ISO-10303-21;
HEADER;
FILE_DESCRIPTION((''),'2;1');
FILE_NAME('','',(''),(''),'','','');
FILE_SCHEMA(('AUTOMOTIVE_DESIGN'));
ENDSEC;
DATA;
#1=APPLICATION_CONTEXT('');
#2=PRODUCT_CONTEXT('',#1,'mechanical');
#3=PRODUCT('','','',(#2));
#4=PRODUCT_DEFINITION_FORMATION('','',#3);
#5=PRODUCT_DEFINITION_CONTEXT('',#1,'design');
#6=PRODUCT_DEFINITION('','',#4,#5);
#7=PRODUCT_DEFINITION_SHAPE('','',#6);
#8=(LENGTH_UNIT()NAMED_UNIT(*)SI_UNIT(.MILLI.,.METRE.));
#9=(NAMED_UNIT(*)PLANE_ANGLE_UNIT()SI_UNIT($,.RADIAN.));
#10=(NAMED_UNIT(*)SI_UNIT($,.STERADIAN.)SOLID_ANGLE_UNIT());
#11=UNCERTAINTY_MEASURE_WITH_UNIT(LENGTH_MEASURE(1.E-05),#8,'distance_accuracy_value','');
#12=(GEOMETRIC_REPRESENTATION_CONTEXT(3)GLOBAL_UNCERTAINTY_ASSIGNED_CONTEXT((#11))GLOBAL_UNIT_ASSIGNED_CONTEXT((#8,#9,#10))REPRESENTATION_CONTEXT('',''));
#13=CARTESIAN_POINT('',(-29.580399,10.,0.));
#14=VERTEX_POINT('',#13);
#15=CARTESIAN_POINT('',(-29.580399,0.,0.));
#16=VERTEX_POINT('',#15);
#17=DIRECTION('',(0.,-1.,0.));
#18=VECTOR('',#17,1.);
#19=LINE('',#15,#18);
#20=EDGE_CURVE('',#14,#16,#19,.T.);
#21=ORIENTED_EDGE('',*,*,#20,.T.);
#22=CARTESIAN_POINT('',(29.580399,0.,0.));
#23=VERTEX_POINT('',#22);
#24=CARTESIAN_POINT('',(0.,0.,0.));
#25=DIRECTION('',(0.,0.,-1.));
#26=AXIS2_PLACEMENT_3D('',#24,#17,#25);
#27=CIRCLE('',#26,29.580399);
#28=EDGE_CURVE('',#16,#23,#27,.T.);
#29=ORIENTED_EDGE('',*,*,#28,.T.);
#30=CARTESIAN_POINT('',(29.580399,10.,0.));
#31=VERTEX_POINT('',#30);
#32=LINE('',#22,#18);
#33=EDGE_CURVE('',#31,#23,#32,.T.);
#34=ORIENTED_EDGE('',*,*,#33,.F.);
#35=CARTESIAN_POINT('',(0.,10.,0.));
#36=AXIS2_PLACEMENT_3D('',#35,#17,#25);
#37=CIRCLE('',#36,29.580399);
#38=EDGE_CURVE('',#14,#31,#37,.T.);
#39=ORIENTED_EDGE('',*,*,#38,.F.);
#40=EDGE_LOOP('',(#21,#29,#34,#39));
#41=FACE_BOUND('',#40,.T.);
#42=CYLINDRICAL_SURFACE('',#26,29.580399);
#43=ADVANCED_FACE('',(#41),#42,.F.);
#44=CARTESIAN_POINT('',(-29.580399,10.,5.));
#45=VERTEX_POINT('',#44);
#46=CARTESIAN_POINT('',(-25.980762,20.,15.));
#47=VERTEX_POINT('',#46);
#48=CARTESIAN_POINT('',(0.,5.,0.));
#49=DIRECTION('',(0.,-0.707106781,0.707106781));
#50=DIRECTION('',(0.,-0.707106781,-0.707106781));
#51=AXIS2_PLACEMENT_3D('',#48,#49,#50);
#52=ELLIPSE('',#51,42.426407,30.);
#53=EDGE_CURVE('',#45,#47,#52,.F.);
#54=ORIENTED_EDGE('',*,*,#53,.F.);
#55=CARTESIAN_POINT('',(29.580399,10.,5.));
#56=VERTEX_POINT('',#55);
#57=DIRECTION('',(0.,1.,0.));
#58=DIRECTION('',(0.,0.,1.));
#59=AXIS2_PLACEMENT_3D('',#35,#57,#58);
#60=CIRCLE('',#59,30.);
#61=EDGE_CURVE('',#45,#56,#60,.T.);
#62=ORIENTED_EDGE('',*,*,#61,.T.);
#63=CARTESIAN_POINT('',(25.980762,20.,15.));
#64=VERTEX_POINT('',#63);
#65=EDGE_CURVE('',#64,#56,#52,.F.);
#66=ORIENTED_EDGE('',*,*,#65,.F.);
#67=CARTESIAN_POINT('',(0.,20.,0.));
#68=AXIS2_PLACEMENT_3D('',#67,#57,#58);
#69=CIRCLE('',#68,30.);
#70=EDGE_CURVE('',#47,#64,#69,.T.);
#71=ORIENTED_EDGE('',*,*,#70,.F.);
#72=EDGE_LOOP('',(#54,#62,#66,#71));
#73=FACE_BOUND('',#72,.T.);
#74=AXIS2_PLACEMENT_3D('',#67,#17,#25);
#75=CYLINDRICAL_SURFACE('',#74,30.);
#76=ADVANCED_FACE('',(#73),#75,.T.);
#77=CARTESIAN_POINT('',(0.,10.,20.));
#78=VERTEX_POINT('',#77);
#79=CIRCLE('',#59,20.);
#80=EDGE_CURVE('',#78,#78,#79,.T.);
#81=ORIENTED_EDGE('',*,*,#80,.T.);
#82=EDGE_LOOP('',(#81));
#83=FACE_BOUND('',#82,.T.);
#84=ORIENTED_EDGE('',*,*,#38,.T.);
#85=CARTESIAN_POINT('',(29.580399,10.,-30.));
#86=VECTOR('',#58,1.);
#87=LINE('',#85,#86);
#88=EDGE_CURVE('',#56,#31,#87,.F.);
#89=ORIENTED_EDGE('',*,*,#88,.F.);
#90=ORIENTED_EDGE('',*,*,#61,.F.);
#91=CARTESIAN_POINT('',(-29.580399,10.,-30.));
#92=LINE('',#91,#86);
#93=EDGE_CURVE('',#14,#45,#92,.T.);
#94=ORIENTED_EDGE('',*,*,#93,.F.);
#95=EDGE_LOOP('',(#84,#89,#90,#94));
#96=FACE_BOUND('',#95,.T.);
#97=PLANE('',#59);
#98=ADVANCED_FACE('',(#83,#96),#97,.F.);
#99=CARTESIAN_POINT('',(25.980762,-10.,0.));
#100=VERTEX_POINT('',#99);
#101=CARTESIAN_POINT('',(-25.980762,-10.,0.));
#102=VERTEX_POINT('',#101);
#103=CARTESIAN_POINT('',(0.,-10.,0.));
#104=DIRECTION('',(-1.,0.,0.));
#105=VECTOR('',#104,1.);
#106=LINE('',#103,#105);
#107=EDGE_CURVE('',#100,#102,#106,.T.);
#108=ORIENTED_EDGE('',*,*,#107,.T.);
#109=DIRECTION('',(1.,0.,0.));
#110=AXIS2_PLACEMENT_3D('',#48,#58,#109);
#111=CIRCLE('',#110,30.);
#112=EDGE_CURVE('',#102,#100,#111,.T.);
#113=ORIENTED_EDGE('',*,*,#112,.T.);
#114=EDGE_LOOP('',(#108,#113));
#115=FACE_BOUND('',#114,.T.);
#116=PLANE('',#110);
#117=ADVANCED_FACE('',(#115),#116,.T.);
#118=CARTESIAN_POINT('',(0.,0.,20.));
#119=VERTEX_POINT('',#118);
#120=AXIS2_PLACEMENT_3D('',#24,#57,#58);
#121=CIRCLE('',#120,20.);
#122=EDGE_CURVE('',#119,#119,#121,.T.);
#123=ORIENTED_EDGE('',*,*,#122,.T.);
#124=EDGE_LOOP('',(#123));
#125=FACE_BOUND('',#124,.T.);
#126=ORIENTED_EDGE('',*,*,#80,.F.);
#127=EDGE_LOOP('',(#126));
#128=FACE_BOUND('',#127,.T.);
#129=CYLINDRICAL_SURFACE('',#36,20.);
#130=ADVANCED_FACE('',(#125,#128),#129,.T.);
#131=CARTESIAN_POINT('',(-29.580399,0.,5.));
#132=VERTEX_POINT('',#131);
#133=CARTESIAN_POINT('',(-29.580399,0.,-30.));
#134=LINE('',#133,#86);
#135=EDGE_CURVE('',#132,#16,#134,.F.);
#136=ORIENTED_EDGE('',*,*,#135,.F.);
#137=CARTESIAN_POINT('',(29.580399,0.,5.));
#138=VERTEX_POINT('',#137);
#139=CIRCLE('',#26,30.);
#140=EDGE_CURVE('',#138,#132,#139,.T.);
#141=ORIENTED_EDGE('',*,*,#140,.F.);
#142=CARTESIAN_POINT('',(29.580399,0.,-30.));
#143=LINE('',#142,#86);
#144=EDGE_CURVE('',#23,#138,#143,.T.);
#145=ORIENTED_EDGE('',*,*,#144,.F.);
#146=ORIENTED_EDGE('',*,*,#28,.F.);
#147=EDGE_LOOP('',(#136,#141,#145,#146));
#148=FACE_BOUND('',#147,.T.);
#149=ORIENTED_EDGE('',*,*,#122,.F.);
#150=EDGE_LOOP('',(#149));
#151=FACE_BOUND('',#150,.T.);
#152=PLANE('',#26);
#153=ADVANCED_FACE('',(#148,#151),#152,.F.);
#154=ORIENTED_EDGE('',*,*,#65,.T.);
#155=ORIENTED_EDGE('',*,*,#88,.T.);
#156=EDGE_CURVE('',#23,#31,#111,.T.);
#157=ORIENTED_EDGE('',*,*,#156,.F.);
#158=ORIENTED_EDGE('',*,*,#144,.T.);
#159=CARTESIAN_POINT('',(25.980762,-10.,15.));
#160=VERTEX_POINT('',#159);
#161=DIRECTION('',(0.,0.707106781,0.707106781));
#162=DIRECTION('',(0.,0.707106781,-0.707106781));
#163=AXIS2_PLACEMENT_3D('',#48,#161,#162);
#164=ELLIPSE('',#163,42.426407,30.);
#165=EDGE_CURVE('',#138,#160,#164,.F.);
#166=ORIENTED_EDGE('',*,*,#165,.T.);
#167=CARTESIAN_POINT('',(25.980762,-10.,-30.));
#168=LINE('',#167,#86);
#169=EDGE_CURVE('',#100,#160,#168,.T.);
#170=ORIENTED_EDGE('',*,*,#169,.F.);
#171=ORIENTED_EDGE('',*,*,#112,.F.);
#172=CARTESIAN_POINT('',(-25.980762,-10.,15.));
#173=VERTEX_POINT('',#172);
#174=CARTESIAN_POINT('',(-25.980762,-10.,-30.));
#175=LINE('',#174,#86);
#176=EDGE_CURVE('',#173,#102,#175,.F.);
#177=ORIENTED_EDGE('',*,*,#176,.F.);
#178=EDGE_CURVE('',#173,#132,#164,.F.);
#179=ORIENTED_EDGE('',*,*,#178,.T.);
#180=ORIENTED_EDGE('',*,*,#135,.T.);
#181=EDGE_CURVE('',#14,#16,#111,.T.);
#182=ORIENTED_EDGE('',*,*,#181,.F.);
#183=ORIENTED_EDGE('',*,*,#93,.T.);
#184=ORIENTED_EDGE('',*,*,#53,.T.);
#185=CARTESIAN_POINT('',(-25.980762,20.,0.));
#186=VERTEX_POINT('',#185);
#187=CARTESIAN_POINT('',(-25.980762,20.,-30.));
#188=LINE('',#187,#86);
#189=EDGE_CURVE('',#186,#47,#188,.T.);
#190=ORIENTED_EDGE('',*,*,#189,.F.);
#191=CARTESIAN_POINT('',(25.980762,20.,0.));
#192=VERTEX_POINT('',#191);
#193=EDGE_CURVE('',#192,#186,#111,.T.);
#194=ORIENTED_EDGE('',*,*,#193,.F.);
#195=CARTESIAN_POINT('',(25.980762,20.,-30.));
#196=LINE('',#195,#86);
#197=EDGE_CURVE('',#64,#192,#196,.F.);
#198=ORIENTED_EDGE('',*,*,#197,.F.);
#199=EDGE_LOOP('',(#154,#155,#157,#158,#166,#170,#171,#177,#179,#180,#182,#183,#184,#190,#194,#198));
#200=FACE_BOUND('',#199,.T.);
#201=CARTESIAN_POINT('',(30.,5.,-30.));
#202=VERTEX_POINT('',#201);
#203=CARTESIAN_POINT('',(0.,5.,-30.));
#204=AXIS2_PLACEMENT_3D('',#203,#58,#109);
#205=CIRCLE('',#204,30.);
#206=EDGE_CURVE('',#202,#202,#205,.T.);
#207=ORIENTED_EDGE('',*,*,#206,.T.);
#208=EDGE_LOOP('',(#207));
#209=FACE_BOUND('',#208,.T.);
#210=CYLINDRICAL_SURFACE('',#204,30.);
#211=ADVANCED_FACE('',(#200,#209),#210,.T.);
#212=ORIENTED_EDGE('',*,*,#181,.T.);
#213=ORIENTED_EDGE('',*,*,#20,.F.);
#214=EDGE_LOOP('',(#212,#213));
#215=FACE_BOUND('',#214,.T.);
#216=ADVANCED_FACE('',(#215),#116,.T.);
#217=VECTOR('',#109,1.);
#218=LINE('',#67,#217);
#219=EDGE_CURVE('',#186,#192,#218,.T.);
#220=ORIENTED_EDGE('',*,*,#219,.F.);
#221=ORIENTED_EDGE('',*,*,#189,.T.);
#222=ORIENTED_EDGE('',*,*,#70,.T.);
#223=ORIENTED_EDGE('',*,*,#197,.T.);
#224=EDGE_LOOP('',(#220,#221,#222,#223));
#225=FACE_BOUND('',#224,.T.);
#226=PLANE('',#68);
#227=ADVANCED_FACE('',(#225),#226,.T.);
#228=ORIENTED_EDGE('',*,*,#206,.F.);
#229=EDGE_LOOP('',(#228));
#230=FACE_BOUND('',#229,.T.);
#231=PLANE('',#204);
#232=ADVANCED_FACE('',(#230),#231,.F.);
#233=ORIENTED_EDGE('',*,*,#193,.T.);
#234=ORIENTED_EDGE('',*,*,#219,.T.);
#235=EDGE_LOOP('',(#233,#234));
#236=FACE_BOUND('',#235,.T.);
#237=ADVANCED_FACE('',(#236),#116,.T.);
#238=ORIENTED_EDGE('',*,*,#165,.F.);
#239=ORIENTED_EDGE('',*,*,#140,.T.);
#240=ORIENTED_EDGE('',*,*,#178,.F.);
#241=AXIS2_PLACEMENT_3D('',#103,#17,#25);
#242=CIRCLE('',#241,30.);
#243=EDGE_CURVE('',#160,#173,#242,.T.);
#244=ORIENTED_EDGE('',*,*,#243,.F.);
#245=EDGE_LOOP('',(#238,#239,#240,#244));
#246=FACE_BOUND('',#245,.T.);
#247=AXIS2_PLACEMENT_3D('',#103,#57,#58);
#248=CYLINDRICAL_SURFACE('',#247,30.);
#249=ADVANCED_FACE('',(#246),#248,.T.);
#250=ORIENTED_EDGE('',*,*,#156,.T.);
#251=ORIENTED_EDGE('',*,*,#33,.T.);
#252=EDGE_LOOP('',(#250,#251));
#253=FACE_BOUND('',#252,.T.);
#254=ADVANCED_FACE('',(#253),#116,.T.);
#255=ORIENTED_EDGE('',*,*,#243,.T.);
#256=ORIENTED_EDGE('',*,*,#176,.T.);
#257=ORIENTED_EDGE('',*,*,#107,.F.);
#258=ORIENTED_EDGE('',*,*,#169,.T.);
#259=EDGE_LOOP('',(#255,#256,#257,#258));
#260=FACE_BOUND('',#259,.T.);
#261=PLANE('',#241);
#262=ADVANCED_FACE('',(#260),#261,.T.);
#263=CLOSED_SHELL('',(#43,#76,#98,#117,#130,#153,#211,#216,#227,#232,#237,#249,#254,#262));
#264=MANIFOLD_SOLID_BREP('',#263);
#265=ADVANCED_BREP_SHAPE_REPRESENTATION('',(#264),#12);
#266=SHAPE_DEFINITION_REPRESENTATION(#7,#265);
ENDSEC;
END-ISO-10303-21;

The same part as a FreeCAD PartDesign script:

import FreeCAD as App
import Part
import Sketcher
from FreeCAD import Vector

doc = App.newDocument("Part")
body = doc.addObject("PartDesign::Body", "Body")

# Sketch on XZ plane
sketch1 = body.newObject("Sketcher::SketchObject", "Sketch")
sketch1.AttachmentSupport = (doc.getObject("XZ_Plane"), [""])
sketch1.MapMode = "FlatFace"
sketch1.addGeometry(Part.Circle(Vector(0, 0, 0), Vector(0, 0, 1), 20), False)
sketch1.addConstraint([
    Sketcher.Constraint("Coincident", 0, 3, -1, 1),
    Sketcher.Constraint("Diameter", 0, 40.0),
])
pad1 = body.newObject("PartDesign::Pad", "Pad")
pad1.Profile = sketch1
pad1.Length = 10
pad1.Reversed = True

# Sketch on XZ plane
sketch2 = body.newObject("Sketcher::SketchObject", "Sketch001")
sketch2.AttachmentSupport = (doc.getObject("XZ_Plane"), [""])
sketch2.MapMode = "FlatFace"
sketch2.AttachmentOffset = App.Placement(Vector(0, 0, -10), App.Rotation())
sketch2.addGeometry(Part.Circle(Vector(0, 0, 0), Vector(0, 0, 1), 30), False)
sketch2.addConstraint([
    Sketcher.Constraint("Coincident", 0, 3, -1, 1),
    Sketcher.Constraint("Diameter", 0, 60.0),
])
pad2 = body.newObject("PartDesign::Pad", "Pad001")
pad2.Profile = sketch2
pad2.Length = 10
pad2.Reversed = True

# Sketch on XZ plane
sketch3 = body.newObject("Sketcher::SketchObject", "Sketch002")
sketch3.AttachmentSupport = (doc.getObject("XZ_Plane"), [""])
sketch3.MapMode = "FlatFace"
sketch3.AttachmentOffset = App.Placement(Vector(0, 0, 10), App.Rotation())
sketch3.addGeometry(Part.Circle(Vector(0, 0, 0), Vector(0, 0, 1), 30), False)
sketch3.addConstraint([
    Sketcher.Constraint("Coincident", 0, 3, -1, 1),
    Sketcher.Constraint("Diameter", 0, 60.0),
])
pad3 = body.newObject("PartDesign::Pad", "Pad002")
pad3.Profile = sketch3
pad3.Length = 10
pad3.Reversed = True

# Sketch on XY plane
sketch4 = body.newObject("Sketcher::SketchObject", "Sketch003")
sketch4.AttachmentSupport = (doc.getObject("XY_Plane"), [""])
sketch4.MapMode = "FlatFace"
sketch4.addGeometry(Part.Circle(Vector(0, 5, 0), Vector(0, 0, 1), 30), False)
sketch4.addConstraint([
    Sketcher.Constraint("PointOnObject", 0, 3, -2),
    Sketcher.Constraint("Diameter", 0, 60.0),
    Sketcher.Constraint("DistanceY", -1, 1, 0, 3, 5.0),
])
pad4 = body.newObject("PartDesign::Pad", "Pad003")
pad4.Profile = sketch4
pad4.Length = 30
pad4.Reversed = True

# Sketch on XY plane
sketch5 = body.newObject("Sketcher::SketchObject", "Sketch004")
sketch5.AttachmentSupport = (doc.getObject("XY_Plane"), [""])
sketch5.MapMode = "FlatFace"
sketch5.addGeometry([
    Part.Circle(Vector(0, 5, 0), Vector(0, 0, 1), 36.178766),
    Part.Circle(Vector(0, 5, 0), Vector(0, 0, 1), 30),
], False)
sketch5.addConstraint([
    Sketcher.Constraint("Coincident", 1, 3, 0, 3),
    Sketcher.Constraint("PointOnObject", 0, 3, -2),
    Sketcher.Constraint("Diameter", 1, 60.0),
    Sketcher.Constraint("DistanceY", -1, 1, 0, 3, 5.0),
    Sketcher.Constraint("Diameter", 0, 72.357532),
])
pocket1 = body.newObject("PartDesign::Pocket", "Pocket")
pocket1.Profile = sketch5
pocket1.Type = "ThroughAll"
pocket1.Midplane = True

# Sketch on XY plane
sketch6 = body.newObject("Sketcher::SketchObject", "Sketch005")
sketch6.AttachmentSupport = (doc.getObject("XY_Plane"), [""])
sketch6.MapMode = "FlatFace"
sketch6.addGeometry([
    Part.LineSegment(Vector(20, 10, 0), Vector(20, 0, 0)),
    Part.LineSegment(Vector(20, 0, 0), Vector(29.580399, 0, 0)),
    Part.LineSegment(Vector(29.580399, 0, 0), Vector(29.580399, 10, 0)),
    Part.LineSegment(Vector(29.580399, 10, 0), Vector(20, 10, 0)),
], False)
sketch6.addConstraint([
    Sketcher.Constraint("Coincident", 0, 2, 1, 1),
    Sketcher.Constraint("Coincident", 1, 2, 2, 1),
    Sketcher.Constraint("Coincident", 2, 2, 3, 1),
    Sketcher.Constraint("Coincident", 3, 2, 0, 1),
    Sketcher.Constraint("Vertical", 0),
    Sketcher.Constraint("Horizontal", 1),
    Sketcher.Constraint("Vertical", 2),
    Sketcher.Constraint("Horizontal", 3),
    Sketcher.Constraint("PointOnObject", 0, 2, -1),
    Sketcher.Constraint("DistanceY", 0, 2, 0, 1, 10.0),
    Sketcher.Constraint("DistanceX", -1, 1, 0, 2, 20.0),
    Sketcher.Constraint("DistanceX", 1, 1, 1, 2, 9.580399),
])
groove = body.newObject("PartDesign::Groove", "Groove")
groove.Profile = sketch6
groove.ReferenceAxis = (sketch6, ["V_Axis"])
groove.Angle = 180

doc.recompute()
